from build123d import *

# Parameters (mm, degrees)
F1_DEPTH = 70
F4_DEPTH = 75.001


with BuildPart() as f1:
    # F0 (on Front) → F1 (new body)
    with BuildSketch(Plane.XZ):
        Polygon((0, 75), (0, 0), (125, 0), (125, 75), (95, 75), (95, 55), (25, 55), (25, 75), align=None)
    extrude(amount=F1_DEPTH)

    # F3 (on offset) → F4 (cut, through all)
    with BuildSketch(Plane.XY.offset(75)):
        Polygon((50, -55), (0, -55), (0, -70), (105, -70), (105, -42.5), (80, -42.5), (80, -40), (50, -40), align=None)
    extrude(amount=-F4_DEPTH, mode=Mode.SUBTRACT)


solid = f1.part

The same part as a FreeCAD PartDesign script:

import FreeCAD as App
import Part
import Sketcher
from FreeCAD import Vector
Q = App.Units.Quantity


def add_polygon(sketch, points):
    """Adds a closed chain of lines whose ends are joined by coincident constraints."""
    first, n = sketch.GeometryCount, len(points)
    for a, b in zip(points, points[1:] + points[:1]):
        sketch.addGeometry(Part.LineSegment(App.Vector(*a, 0), App.Vector(*b, 0)), False)
    for i in range(n):
        sketch.addConstraint(Sketcher.Constraint("Coincident", first + i, 2, first + (i + 1) % n, 1))

doc = App.newDocument("Part")
body = doc.addObject("PartDesign::Body", "Body")

sketch1 = doc.addObject("Sketcher::SketchObject", "Sketch")
body.addObject(sketch1)
sketch1.AttachmentSupport = (doc.XZ_Plane, [""])
sketch1.MapMode = "FlatFace"
add_polygon(sketch1, [(0, 75), (0, 0), (125, 0), (125, 75), (95, 75), (95, 55), (25, 55), (25, 75)])
sketch1.addConstraint([
    Sketcher.Constraint("Vertical", 0),
    Sketcher.Constraint("Horizontal", 1),
    Sketcher.Constraint("Vertical", 2),
    Sketcher.Constraint("Horizontal", 3),
    Sketcher.Constraint("Vertical", 4),
    Sketcher.Constraint("Horizontal", 5),
    Sketcher.Constraint("Vertical", 6),
    Sketcher.Constraint("Horizontal", 7),
    Sketcher.Constraint("Coincident", 0, 2, -1, 1),
    Sketcher.Constraint("Horizontal", 3, 2, 6, 2),
    Sketcher.Constraint("DistanceX", 1, 1, 1, 2, Q("125 mm")),
    Sketcher.Constraint("DistanceX", 3, 2, 3, 1, Q("30 mm")),
    Sketcher.Constraint("DistanceX", 5, 2, 5, 1, Q("70 mm")),
    Sketcher.Constraint("DistanceY", 0, 2, 0, 1, Q("75 mm")),
    Sketcher.Constraint("DistanceY", 4, 2, 4, 1, Q("20 mm")),
])
pad1 = doc.addObject("PartDesign::Pad", "Pad")
body.addObject(pad1)
pad1.Profile = sketch1
pad1.Length = 70

sketch2 = doc.addObject("Sketcher::SketchObject", "Sketch001")
body.addObject(sketch2)
sketch2.AttachmentSupport = (doc.XY_Plane, [""])
sketch2.MapMode = "FlatFace"
sketch2.AttachmentOffset = App.Placement(Vector(0, 0, 75), App.Rotation())
add_polygon(sketch2, [(50, -55), (0, -55), (0, -70), (105, -70), (105, -42.5), (80, -42.5), (80, -40), (50, -40)])
sketch2.addConstraint([
    Sketcher.Constraint("Horizontal", 0),
    Sketcher.Constraint("Vertical", 1),
    Sketcher.Constraint("Horizontal", 2),
    Sketcher.Constraint("Vertical", 3),
    Sketcher.Constraint("Horizontal", 4),
    Sketcher.Constraint("Vertical", 5),
    Sketcher.Constraint("Horizontal", 6),
    Sketcher.Constraint("Vertical", 7),
    Sketcher.Constraint("PointOnObject", 0, 2, -2),
    Sketcher.Constraint("Equal", 1, 7),
    Sketcher.Constraint("DistanceX", 0, 2, 0, 1, Q("50 mm")),
    Sketcher.Constraint("DistanceX", 2, 1, 2, 2, Q("105 mm")),
    Sketcher.Constraint("DistanceX", 4, 2, 4, 1, Q("25 mm")),
    Sketcher.Constraint("DistanceY", 1, 2, 1, 1, Q("15 mm")),
    Sketcher.Constraint("DistanceY", 3, 1, 3, 2, Q("27.5 mm")),
    Sketcher.Constraint("DistanceY", 0, 2, -1, 1, Q("55 mm")),
])
pocket1 = doc.addObject("PartDesign::Pocket", "Pocket")
body.addObject(pocket1)
pocket1.Profile = sketch2
pocket1.Type = "ThroughAll"

doc.recompute()
